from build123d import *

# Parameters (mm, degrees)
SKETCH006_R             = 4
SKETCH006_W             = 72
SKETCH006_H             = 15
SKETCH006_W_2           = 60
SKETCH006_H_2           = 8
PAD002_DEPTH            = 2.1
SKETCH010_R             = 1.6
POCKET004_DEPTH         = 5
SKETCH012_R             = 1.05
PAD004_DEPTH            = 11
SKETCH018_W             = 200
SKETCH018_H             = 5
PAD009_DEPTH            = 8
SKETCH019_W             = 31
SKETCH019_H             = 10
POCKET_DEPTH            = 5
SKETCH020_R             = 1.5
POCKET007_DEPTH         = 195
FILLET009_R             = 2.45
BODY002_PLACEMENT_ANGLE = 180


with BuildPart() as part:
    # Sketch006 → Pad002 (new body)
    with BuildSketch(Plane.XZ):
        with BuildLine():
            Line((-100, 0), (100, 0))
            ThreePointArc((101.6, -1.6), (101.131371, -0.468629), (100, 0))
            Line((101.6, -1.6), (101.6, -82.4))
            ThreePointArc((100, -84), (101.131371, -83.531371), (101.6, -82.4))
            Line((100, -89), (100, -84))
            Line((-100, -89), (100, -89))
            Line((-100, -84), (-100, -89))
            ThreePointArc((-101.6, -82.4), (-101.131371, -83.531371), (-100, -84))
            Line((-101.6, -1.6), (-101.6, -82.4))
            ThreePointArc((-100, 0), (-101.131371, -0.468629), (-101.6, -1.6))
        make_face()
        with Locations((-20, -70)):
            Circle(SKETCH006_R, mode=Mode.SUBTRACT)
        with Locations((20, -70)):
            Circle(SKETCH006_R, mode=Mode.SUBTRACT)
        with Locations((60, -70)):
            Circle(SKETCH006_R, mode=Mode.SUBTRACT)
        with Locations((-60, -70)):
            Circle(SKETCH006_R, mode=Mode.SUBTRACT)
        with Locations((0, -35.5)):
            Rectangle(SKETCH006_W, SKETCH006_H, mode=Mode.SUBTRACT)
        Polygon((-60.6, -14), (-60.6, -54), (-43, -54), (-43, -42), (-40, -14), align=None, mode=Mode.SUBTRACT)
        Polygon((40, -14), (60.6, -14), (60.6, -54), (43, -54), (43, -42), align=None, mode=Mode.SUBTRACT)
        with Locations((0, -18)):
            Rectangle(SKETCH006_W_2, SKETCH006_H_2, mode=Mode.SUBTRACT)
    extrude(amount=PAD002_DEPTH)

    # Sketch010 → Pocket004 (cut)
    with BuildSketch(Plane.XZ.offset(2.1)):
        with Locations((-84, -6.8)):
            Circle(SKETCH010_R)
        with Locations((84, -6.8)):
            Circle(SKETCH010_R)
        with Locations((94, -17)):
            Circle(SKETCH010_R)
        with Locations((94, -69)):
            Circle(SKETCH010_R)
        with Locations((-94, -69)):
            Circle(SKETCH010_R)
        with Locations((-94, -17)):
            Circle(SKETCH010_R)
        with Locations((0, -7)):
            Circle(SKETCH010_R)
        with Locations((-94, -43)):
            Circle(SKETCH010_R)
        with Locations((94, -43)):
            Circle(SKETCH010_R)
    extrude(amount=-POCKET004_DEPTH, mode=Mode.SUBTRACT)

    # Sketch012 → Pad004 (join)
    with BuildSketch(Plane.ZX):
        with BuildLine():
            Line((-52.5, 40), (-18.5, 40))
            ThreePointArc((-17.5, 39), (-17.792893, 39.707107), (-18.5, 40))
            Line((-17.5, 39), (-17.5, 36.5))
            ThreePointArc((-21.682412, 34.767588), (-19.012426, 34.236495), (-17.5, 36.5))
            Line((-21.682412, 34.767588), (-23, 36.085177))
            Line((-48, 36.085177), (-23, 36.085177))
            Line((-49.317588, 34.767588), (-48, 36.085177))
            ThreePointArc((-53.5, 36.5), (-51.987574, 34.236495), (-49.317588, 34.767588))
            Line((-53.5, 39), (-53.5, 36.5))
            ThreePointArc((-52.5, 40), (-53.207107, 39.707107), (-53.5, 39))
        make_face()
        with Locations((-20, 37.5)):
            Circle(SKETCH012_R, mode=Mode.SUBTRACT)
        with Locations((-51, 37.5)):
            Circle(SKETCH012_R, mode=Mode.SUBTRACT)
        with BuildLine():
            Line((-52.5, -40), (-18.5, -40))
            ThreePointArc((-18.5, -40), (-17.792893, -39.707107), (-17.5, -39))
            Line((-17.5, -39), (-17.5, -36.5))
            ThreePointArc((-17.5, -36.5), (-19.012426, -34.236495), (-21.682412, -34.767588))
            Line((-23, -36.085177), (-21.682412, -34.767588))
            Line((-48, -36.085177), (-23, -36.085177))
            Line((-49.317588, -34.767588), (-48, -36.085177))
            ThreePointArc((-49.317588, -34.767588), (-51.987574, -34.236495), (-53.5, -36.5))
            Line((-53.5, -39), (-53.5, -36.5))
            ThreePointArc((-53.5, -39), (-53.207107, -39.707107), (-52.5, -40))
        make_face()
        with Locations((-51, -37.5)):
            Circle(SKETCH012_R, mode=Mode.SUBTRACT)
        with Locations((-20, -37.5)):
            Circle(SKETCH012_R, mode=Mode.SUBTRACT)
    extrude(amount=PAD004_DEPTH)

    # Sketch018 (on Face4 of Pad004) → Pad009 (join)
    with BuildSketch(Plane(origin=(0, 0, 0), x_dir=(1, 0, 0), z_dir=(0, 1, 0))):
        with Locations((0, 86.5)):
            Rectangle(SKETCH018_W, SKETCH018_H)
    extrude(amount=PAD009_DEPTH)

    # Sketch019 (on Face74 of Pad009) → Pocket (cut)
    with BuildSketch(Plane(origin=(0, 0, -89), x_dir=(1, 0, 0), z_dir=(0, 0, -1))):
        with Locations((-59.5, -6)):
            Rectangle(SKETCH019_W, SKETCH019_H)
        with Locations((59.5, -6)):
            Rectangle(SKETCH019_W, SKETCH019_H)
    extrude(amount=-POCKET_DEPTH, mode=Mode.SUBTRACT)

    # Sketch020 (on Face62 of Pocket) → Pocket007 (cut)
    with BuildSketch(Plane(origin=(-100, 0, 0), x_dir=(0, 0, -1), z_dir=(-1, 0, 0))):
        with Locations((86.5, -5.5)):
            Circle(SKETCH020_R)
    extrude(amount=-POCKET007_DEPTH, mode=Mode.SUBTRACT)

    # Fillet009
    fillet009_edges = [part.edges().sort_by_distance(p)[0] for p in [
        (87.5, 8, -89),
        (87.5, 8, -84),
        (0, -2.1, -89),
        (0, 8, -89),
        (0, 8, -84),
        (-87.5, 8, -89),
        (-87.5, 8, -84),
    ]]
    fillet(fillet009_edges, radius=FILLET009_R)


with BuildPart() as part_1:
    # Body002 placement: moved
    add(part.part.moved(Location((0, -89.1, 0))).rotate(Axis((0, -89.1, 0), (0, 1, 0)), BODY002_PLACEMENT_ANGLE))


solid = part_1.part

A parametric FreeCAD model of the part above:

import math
import FreeCAD as App
import Part
import Sketcher
from FreeCAD import Vector


def edges_at(feature, points):
    """Names of the edges that pass closest to the given points."""
    edges = feature.Shape.Edges
    near = lambda p: min(range(len(edges)), key=lambda i: edges[i].distToShape(Part.Vertex(*p))[0])
    return sorted({f"Edge{near(p) + 1}" for p in points})

doc = App.newDocument("Part")
params = doc.addObject("Spreadsheet::Sheet", "Params")
for row, (alias, value) in enumerate([
    ("sketch1_diameter", "8 mm"),
    ("sketch1_radius", "1.599999 mm"),
    ("sketch1_width", "200 mm"),
    ("sketch1_width2", "72 mm"),
    ("sketch1_width3", "60 mm"),
    ("pad1_length", "2.1 mm"),
    ("sketch2_diameter", "3.2 mm"),
    ("pocket1_length", "5 mm"),
    ("sketch3_radius", "0.999999 mm"),
    ("sketch3_diameter", "2.1 mm"),
    ("sketch3_height", "34 mm"),
    ("sketch3_height2", "25 mm"),
    ("sketch3_radius2", "2.45 mm"),
    ("pad2_length", "11 mm"),
    ("sketch4_width", "200 mm"),
    ("sketch4_height", "5 mm"),
    ("pad3_length", "8 mm"),
    ("sketch5_width", "31 mm"),
    ("sketch5_height", "10 mm"),
    ("pocket2_length", "5 mm"),
    ("sketch6_diameter", "3 mm"),
    ("pocket3_length", "195 mm"),
    ("fillet_radius", "2.45 mm"),
], start=1):
    params.set(f"A{row}", alias)
    params.set(f"B{row}", "=" + value)
    params.setAlias(f"B{row}", alias)

body = doc.addObject("PartDesign::Body", "Body")

sketch1 = doc.addObject("Sketcher::SketchObject", "Sketch")
body.addObject(sketch1)
sketch1.AttachmentSupport = (doc.XZ_Plane, [""])
sketch1.MapMode = "FlatFace"
sketch1.addGeometry([
    Part.LineSegment(Vector(100, 0, 0), Vector(-100, 0, 0)),
    Part.ArcOfCircle(Part.Circle(Vector(-100, -1.6, 0), Vector(0, 0, 1), 1.6), math.radians(90), math.radians(180)),
    Part.LineSegment(Vector(-101.6, -1.6, 0), Vector(-101.6, -82.4, 0)),
    Part.ArcOfCircle(Part.Circle(Vector(-100, -82.4, 0), Vector(0, 0, 1), 1.6), math.radians(180), math.radians(270)),
    Part.LineSegment(Vector(-100, -84, 0), Vector(-100, -89, 0)),
    Part.LineSegment(Vector(-100, -89, 0), Vector(100, -89, 0)),
    Part.LineSegment(Vector(100, -89, 0), Vector(100, -84, 0)),
    Part.ArcOfCircle(Part.Circle(Vector(100, -82.4, 0), Vector(0, 0, 1), 1.6), math.radians(-90), math.radians(0)),
    Part.LineSegment(Vector(101.6, -82.4, 0), Vector(101.6, -1.6, 0)),
    Part.ArcOfCircle(Part.Circle(Vector(100, -1.6, 0), Vector(0, 0, 1), 1.6), math.radians(0), math.radians(90)),
    Part.Circle(Vector(60, -70, 0), Vector(0, 0, 1), 4),
    Part.Circle(Vector(20, -70, 0), Vector(0, 0, 1), 4),
    Part.Circle(Vector(-20, -70, 0), Vector(0, 0, 1), 4),
    Part.Circle(Vector(-60, -70, 0), Vector(0, 0, 1), 4),
    Part.LineSegment(Vector(40, -14, 0), Vector(60.6, -14, 0)),
    Part.LineSegment(Vector(60.6, -14, 0), Vector(60.6, -54, 0)),
    Part.LineSegment(Vector(60.6, -54, 0), Vector(43, -54, 0)),
    Part.LineSegment(Vector(43, -54, 0), Vector(43, -42, 0)),
    Part.LineSegment(Vector(43, -42, 0), Vector(40, -14, 0)),
    Part.LineSegment(Vector(-36, -43, 0), Vector(-36, -28, 0)),
    Part.LineSegment(Vector(-36, -28, 0), Vector(36, -28, 0)),
    Part.LineSegment(Vector(36, -28, 0), Vector(36, -43, 0)),
    Part.LineSegment(Vector(36, -43, 0), Vector(-36, -43, 0)),
    Part.LineSegment(Vector(-60.6, -14, 0), Vector(-40, -14, 0)),
    Part.LineSegment(Vector(-40, -14, 0), Vector(-43, -42, 0)),
    Part.LineSegment(Vector(-43, -42, 0), Vector(-43, -54, 0)),
    Part.LineSegment(Vector(-43, -54, 0), Vector(-60.6, -54, 0)),
    Part.LineSegment(Vector(-60.6, -54, 0), Vector(-60.6, -14, 0)),
    Part.LineSegment(Vector(-30, -22, 0), Vector(-30, -14, 0)),
    Part.LineSegment(Vector(-30, -14, 0), Vector(30, -14, 0)),
    Part.LineSegment(Vector(30, -14, 0), Vector(30, -22, 0)),
    Part.LineSegment(Vector(30, -22, 0), Vector(-30, -22, 0)),
], False)
sketch1.addConstraint([
    Sketcher.Constraint("Tangent", 0, 2, 1, 1),
    Sketcher.Constraint("Tangent", 1, 2, 2, 1),
    Sketcher.Constraint("Tangent", 2, 2, 3, 1),
    Sketcher.Constraint("Coincident", 3, 2, 4, 1),
    Sketcher.Constraint("Coincident", 4, 2, 5, 1),
    Sketcher.Constraint("Coincident", 5, 2, 6, 1),
    Sketcher.Constraint("Coincident", 6, 2, 7, 1),
    Sketcher.Constraint("Tangent", 7, 2, 8, 1),
    Sketcher.Constraint("Tangent", 8, 2, 9, 1),
    Sketcher.Constraint("Tangent", 9, 2, 0, 1),
    Sketcher.Constraint("Coincident", 14, 2, 15, 1),
    Sketcher.Constraint("Coincident", 15, 2, 16, 1),
    Sketcher.Constraint("Coincident", 16, 2, 17, 1),
    Sketcher.Constraint("Coincident", 17, 2, 18, 1),
    Sketcher.Constraint("Coincident", 18, 2, 14, 1),
    Sketcher.Constraint("Coincident", 19, 2, 20, 1),
    Sketcher.Constraint("Coincident", 20, 2, 21, 1),
    Sketcher.Constraint("Coincident", 21, 2, 22, 1),
    Sketcher.Constraint("Coincident", 22, 2, 19, 1),
    Sketcher.Constraint("Coincident", 23, 2, 24, 1),
    Sketcher.Constraint("Coincident", 24, 2, 25, 1),
    Sketcher.Constraint("Coincident", 25, 2, 26, 1),
    Sketcher.Constraint("Coincident", 26, 2, 27, 1),
    Sketcher.Constraint("Coincident", 27, 2, 23, 1),
    Sketcher.Constraint("Coincident", 28, 2, 29, 1),
    Sketcher.Constraint("Coincident", 29, 2, 30, 1),
    Sketcher.Constraint("Coincident", 30, 2, 31, 1),
    Sketcher.Constraint("Coincident", 31, 2, 28, 1),
    Sketcher.Constraint("Horizontal", 0),
    Sketcher.Constraint("Vertical", 2),
    Sketcher.Constraint("Vertical", 4),
    Sketcher.Constraint("Horizontal", 5),
    Sketcher.Constraint("Vertical", 6),
    Sketcher.Constraint("Vertical", 8),
    Sketcher.Constraint("Horizontal", 14),
    Sketcher.Constraint("Vertical", 15),
    Sketcher.Constraint("Horizontal", 16),
    Sketcher.Constraint("Vertical", 17),
    Sketcher.Constraint("Vertical", 19),
    Sketcher.Constraint("Horizontal", 20),
    Sketcher.Constraint("Vertical", 21),
    Sketcher.Constraint("Horizontal", 22),
    Sketcher.Constraint("Horizontal", 23),
    Sketcher.Constraint("Vertical", 25),
    Sketcher.Constraint("Horizontal", 26),
    Sketcher.Constraint("Vertical", 27),
    Sketcher.Constraint("Vertical", 28),
    Sketcher.Constraint("Horizontal", 29),
    Sketcher.Constraint("Vertical", 30),
    Sketcher.Constraint("Horizontal", 31),
    Sketcher.Constraint("Equal", 1, 3),
    Sketcher.Constraint("Equal", 3, 7),
    Sketcher.Constraint("Equal", 7, 9),
    Sketcher.Constraint("Equal", 10, 11),
    Sketcher.Constraint("Equal", 11, 12),
    Sketcher.Constraint("Equal", 12, 13),
    Sketcher.Constraint("Symmetric", 0, 2, 9, 2, -1, 1),
    Sketcher.Constraint("Symmetric", 11, 3, 12, 3, -2),
    Sketcher.Constraint("Symmetric", 10, 3, 13, 3, -2),
    Sketcher.Constraint("Symmetric", 3, 2, 6, 2, -2),
    Sketcher.Constraint("Symmetric", 18, 2, 23, 2, -2),
    Sketcher.Constraint("Symmetric", 17, 2, 24, 2, -2),
    Sketcher.Constraint("Symmetric", 15, 2, 26, 2, -2),
    Sketcher.Constraint("Horizontal", 10, 3, 11, 3),
    Sketcher.Constraint("Horizontal", 27, 2, 28, 2),
    Sketcher.Constraint("Vertical", 0, 2, 3, 2),
    Sketcher.Constraint("Diameter", 10, 8.0),
    Sketcher.Constraint("Radius", 1, 1.599999),
    Sketcher.Constraint("DistanceX", 0, 2, 0, 1, 200.0),
    Sketcher.Constraint("DistanceX", 20, 1, 20, 2, 72.0),
    Sketcher.Constraint("DistanceX", 29, 1, 29, 2, 60.0),
    Sketcher.Constraint("DistanceY", 4, 2, 4, 1, 5.0),
    Sketcher.Constraint("DistanceY", 15, 2, 15, 1, 40.0),
    Sketcher.Constraint("DistanceY", 17, 1, 17, 2, 12.0),
    Sketcher.Constraint("DistanceY", 19, 1, 19, 2, 15.0),
    Sketcher.Constraint("DistanceY", 28, 1, 28, 2, 8.0),
    Sketcher.Constraint("DistanceX", 14, 1, 14, 2, 20.6),
    Sketcher.Constraint("DistanceX", 16, 2, 16, 1, 17.6),
    Sketcher.Constraint("DistanceY", 2, 2, 2, 1, 80.8),
    Sketcher.Constraint("DistanceX", -1, 1, 10, 3, 60.0),
    Sketcher.Constraint("DistanceY", 10, 3, -1, 1, 70.0),
    Sketcher.Constraint("DistanceX", -1, 1, 11, 3, 20.0),
    Sketcher.Constraint("DistanceY", 14, 2, -1, 1, 14.0),
    Sketcher.Constraint("DistanceX", -1, 1, 16, 2, 43.0),
    Sketcher.Constraint("DistanceX", 19, 2, -1, 1, 36.0),
    Sketcher.Constraint("DistanceY", 19, 2, -1, 1, 28.0),
    Sketcher.Constraint("DistanceX", 28, 2, -1, 1, 30.0),
])
sketch1.setExpression("Constraints[66]", "Params.sketch1_diameter")
sketch1.setExpression("Constraints[67]", "Params.sketch1_radius")
sketch1.setExpression("Constraints[68]", "Params.sketch1_width")
sketch1.setExpression("Constraints[69]", "Params.sketch1_width2")
sketch1.setExpression("Constraints[70]", "Params.sketch1_width3")
pad1 = doc.addObject("PartDesign::Pad", "Pad")
body.addObject(pad1)
pad1.Profile = sketch1
pad1.setExpression("Length", "Params.pad1_length")

sketch2 = doc.addObject("Sketcher::SketchObject", "Sketch001")
body.addObject(sketch2)
sketch2.AttachmentSupport = (doc.XZ_Plane, [""])
sketch2.MapMode = "FlatFace"
sketch2.AttachmentOffset = App.Placement(Vector(0, 0, 2.1), App.Rotation())
sketch2.addGeometry([
    Part.Circle(Vector(-84, -6.8, 0), Vector(0, 0, 1), 1.6),
    Part.Circle(Vector(84, -6.8, 0), Vector(0, 0, 1), 1.6),
    Part.Circle(Vector(94, -17, 0), Vector(0, 0, 1), 1.6),
    Part.Circle(Vector(94, -69, 0), Vector(0, 0, 1), 1.6),
    Part.Circle(Vector(-94, -69, 0), Vector(0, 0, 1), 1.6),
    Part.Circle(Vector(-94, -17, 0), Vector(0, 0, 1), 1.6),
    Part.Circle(Vector(0, -7, 0), Vector(0, 0, 1), 1.6),
    Part.Circle(Vector(-94, -43, 0), Vector(0, 0, 1), 1.6),
    Part.Circle(Vector(94, -43, 0), Vector(0, 0, 1), 1.6),
], False)
sketch2.addConstraint([
    Sketcher.Constraint("Equal", 0, 1),
    Sketcher.Constraint("Equal", 1, 2),
    Sketcher.Constraint("Equal", 2, 3),
    Sketcher.Constraint("Equal", 3, 4),
    Sketcher.Constraint("Equal", 4, 5),
    Sketcher.Constraint("Equal", 5, 6),
    Sketcher.Constraint("Equal", 6, 7),
    Sketcher.Constraint("Equal", 7, 8),
    Sketcher.Constraint("Symmetric", 0, 3, 1, 3, -2),
    Sketcher.Constraint("Symmetric", 3, 3, 4, 3, -2),
    Sketcher.Constraint("Symmetric", 2, 3, 5, 3, -2),
    Sketcher.Constraint("Symmetric", 7, 3, 8, 3, -2),
    Sketcher.Constraint("PointOnObject", 6, 3, -2),
    Sketcher.Constraint("Vertical", 2, 3, 3, 3),
    Sketcher.Constraint("Vertical", 5, 3, 7, 3),
    Sketcher.Constraint("Diameter", 0, 3.2),
    Sketcher.Constraint("DistanceX", 0, 3, -1, 1, 84.0),
    Sketcher.Constraint("DistanceX", -1, 1, 2, 3, 94.0),
    Sketcher.Constraint("DistanceY", 2, 3, -1, 1, 17.0),
    Sketcher.Constraint("DistanceY", 3, 3, -1, 1, 69.0),
    Sketcher.Constraint("DistanceY", 6, 3, -1, 1, 7.0),
    Sketcher.Constraint("DistanceY", 7, 3, -1, 1, 43.0),
    Sketcher.Constraint("DistanceY", 0, 3, -1, 1, 6.8),
])
sketch2.setExpression("Constraints[15]", "Params.sketch2_diameter")
pocket1 = doc.addObject("PartDesign::Pocket", "Pocket")
body.addObject(pocket1)
pocket1.Profile = sketch2
pocket1.setExpression("Length", "Params.pocket1_length")

sketch3 = doc.addObject("Sketcher::SketchObject", "Sketch002")
body.addObject(sketch3)
sketch3.AttachmentSupport = (doc.XZ_Plane, [""])
sketch3.MapMode = "FlatFace"
sketch3.addGeometry([
    Part.LineSegment(Vector(40, -18.5, 0), Vector(40, -52.5, 0)),
    Part.ArcOfCircle(Part.Circle(Vector(39, -52.5, 0), Vector(0, 0, 1), 1), math.radians(-90), math.radians(0)),
    Part.LineSegment(Vector(39, -53.5, 0), Vector(36.5, -53.5, 0)),
    Part.ArcOfCircle(Part.Circle(Vector(36.5, -51, 0), Vector(0, 0, 1), 2.5), math.radians(135), math.radians(270)),
    Part.LineSegment(Vector(34.8, -49.3, 0), Vector(36.1, -48, 0)),
    Part.LineSegment(Vector(36.1, -48, 0), Vector(36.1, -23, 0)),
    Part.LineSegment(Vector(36.1, -23, 0), Vector(34.8, -21.7, 0)),
    Part.ArcOfCircle(Part.Circle(Vector(36.5, -20, 0), Vector(0, 0, 1), 2.5), math.radians(90), math.radians(225)),
    Part.LineSegment(Vector(36.5, -17.5, 0), Vector(39, -17.5, 0)),
    Part.ArcOfCircle(Part.Circle(Vector(39, -18.5, 0), Vector(0, 0, 1), 1), math.radians(0), math.radians(90)),
    Part.Circle(Vector(37.5, -20, 0), Vector(0, 0, 1), 1.1),
    Part.Circle(Vector(37.5, -51, 0), Vector(0, 0, 1), 1.1),
    Part.LineSegment(Vector(-40, -52.5, 0), Vector(-40, -18.5, 0)),
    Part.ArcOfCircle(Part.Circle(Vector(-39, -18.5, 0), Vector(0, 0, 1), 1), math.radians(90), math.radians(180)),
    Part.LineSegment(Vector(-39, -17.5, 0), Vector(-36.5, -17.5, 0)),
    Part.ArcOfCircle(Part.Circle(Vector(-36.5, -20, 0), Vector(0, 0, 1), 2.5), math.radians(-45), math.radians(90)),
    Part.LineSegment(Vector(-34.8, -21.7, 0), Vector(-36.1, -23, 0)),
    Part.LineSegment(Vector(-36.1, -23, 0), Vector(-36.1, -48, 0)),
    Part.LineSegment(Vector(-36.1, -48, 0), Vector(-34.8, -49.3, 0)),
    Part.ArcOfCircle(Part.Circle(Vector(-36.5, -51, 0), Vector(0, 0, 1), 2.5), math.radians(-90), math.radians(45)),
    Part.LineSegment(Vector(-36.5, -53.5, 0), Vector(-39, -53.5, 0)),
    Part.ArcOfCircle(Part.Circle(Vector(-39, -52.5, 0), Vector(0, 0, 1), 1), math.radians(180), math.radians(270)),
    Part.Circle(Vector(-37.5, -51, 0), Vector(0, 0, 1), 1.1),
    Part.Circle(Vector(-37.5, -20, 0), Vector(0, 0, 1), 1.1),
], False)
sketch3.addConstraint([
    Sketcher.Constraint("Tangent", 0, 2, 1, 2),
    Sketcher.Constraint("Tangent", 1, 1, 2, 1),
    Sketcher.Constraint("Tangent", 2, 2, 3, 2),
    Sketcher.Constraint("Tangent", 3, 1, 4, 1),
    Sketcher.Constraint("Coincident", 4, 2, 5, 1),
    Sketcher.Constraint("Coincident", 5, 2, 6, 1),
    Sketcher.Constraint("Tangent", 6, 2, 7, 2),
    Sketcher.Constraint("Tangent", 7, 1, 8, 1),
    Sketcher.Constraint("Tangent", 8, 2, 9, 2),
    Sketcher.Constraint("Tangent", 9, 1, 0, 1),
    Sketcher.Constraint("Tangent", 12, 2, 13, 2),
    Sketcher.Constraint("Tangent", 13, 1, 14, 1),
    Sketcher.Constraint("Tangent", 14, 2, 15, 2),
    Sketcher.Constraint("Tangent", 15, 1, 16, 1),
    Sketcher.Constraint("Coincident", 16, 2, 17, 1),
    Sketcher.Constraint("Coincident", 17, 2, 18, 1),
    Sketcher.Constraint("Tangent", 18, 2, 19, 2),
    Sketcher.Constraint("Tangent", 19, 1, 20, 1),
    Sketcher.Constraint("Tangent", 20, 2, 21, 2),
    Sketcher.Constraint("Tangent", 21, 1, 12, 1),
    Sketcher.Constraint("Vertical", 0),
    Sketcher.Constraint("Horizontal", 2),
    Sketcher.Constraint("Vertical", 5),
    Sketcher.Constraint("Horizontal", 8),
    Sketcher.Constraint("Vertical", 12),
    Sketcher.Constraint("Horizontal", 14),
    Sketcher.Constraint("Vertical", 17),
    Sketcher.Constraint("Horizontal", 20),
    Sketcher.Constraint("Equal", 3, 7),
    Sketcher.Constraint("Equal", 1, 9),
    Sketcher.Constraint("Equal", 10, 11),
    Sketcher.Constraint("Equal", 9, 13),
    Sketcher.Constraint("Equal", 7, 15),
    Sketcher.Constraint("Equal", 15, 19),
    Sketcher.Constraint("Equal", 13, 21),
    Sketcher.Constraint("Equal", 11, 22),
    Sketcher.Constraint("Equal", 22, 23),
    Sketcher.Constraint("Symmetric", 9, 3, 13, 3, -2),
    Sketcher.Constraint("Symmetric", 3, 3, 19, 3, -2),
    Sketcher.Constraint("Symmetric", 11, 3, 22, 3, -2),
    Sketcher.Constraint("Symmetric", 10, 3, 23, 3, -2),
    Sketcher.Constraint("Symmetric", 6, 2, 15, 1, -2),
    Sketcher.Constraint("Symmetric", 4, 2, 17, 2, -2),
    Sketcher.Constraint("Perpendicular", 4, 6),
    Sketcher.Constraint("Perpendicular", 6, 16),
    Sketcher.Constraint("Vertical", 3, 3, 7, 3),
    Sketcher.Constraint("Vertical", 10, 3, 11, 3),
    Sketcher.Constraint("Radius", 1, 0.999999),
    Sketcher.Constraint("Diameter", 10, 2.1),
    Sketcher.Constraint("DistanceY", 0, 2, 0, 1, 34.0),
    Sketcher.Constraint("DistanceY", 5, 1, 5, 2, 25.0),
    Sketcher.Constraint("Radius", 3, 2.45),
    Sketcher.Constraint("DistanceX", 2, 2, 2, 1, 2.5),
    Sketcher.Constraint("DistanceX", -1, 1, 1, 3, 39.000001),
    Sketcher.Constraint("DistanceY", 10, 3, -1, 1, 20.0),
    Sketcher.Constraint("DistanceY", 11, 3, -1, 1, 51.0),
    Sketcher.Constraint("DistanceY", 4, 2, -1, 1, 48.0),
    Sketcher.Constraint("DistanceX", 7, 3, 10, 3, 1.0),
])
sketch3.setExpression("Constraints[47]", "Params.sketch3_radius")
sketch3.setExpression("Constraints[48]", "Params.sketch3_diameter")
sketch3.setExpression("Constraints[49]", "Params.sketch3_height")
sketch3.setExpression("Constraints[50]", "Params.sketch3_height2")
sketch3.setExpression("Constraints[51]", "Params.sketch3_radius2")
pad2 = doc.addObject("PartDesign::Pad", "Pad001")
body.addObject(pad2)
pad2.Profile = sketch3
pad2.setExpression("Length", "Params.pad2_length")
pad2.Reversed = True

sketch4 = doc.addObject("Sketcher::SketchObject", "Sketch003")
body.addObject(sketch4)
sketch4.AttachmentSupport = (doc.XZ_Plane, [""])
sketch4.MapMode = "FlatFace"
sketch4.addGeometry([
    Part.LineSegment(Vector(-100, -89, 0), Vector(-100, -84, 0)),
    Part.LineSegment(Vector(-100, -84, 0), Vector(100, -84, 0)),
    Part.LineSegment(Vector(100, -84, 0), Vector(100, -89, 0)),
    Part.LineSegment(Vector(100, -89, 0), Vector(-100, -89, 0)),
], False)
sketch4.addConstraint([
    Sketcher.Constraint("Coincident", 0, 2, 1, 1),
    Sketcher.Constraint("Coincident", 1, 2, 2, 1),
    Sketcher.Constraint("Coincident", 2, 2, 3, 1),
    Sketcher.Constraint("Coincident", 3, 2, 0, 1),
    Sketcher.Constraint("Vertical", 0),
    Sketcher.Constraint("Horizontal", 1),
    Sketcher.Constraint("Vertical", 2),
    Sketcher.Constraint("Horizontal", 3),
    Sketcher.Constraint("DistanceX", 1, 1, 1, 2, 200.0),
    Sketcher.Constraint("DistanceY", 0, 1, 0, 2, 5.0),
    Sketcher.Constraint("DistanceX", 0, 2, -1, 1, 100.0),
    Sketcher.Constraint("DistanceY", 0, 2, -1, 1, 84.0),
])
sketch4.setExpression("Constraints[8]", "Params.sketch4_width")
sketch4.setExpression("Constraints[9]", "Params.sketch4_height")
pad3 = doc.addObject("PartDesign::Pad", "Pad002")
body.addObject(pad3)
pad3.Profile = sketch4
pad3.setExpression("Length", "Params.pad3_length")
pad3.Reversed = True

sketch5 = doc.addObject("Sketcher::SketchObject", "Sketch004")
body.addObject(sketch5)
sketch5.AttachmentSupport = (doc.XY_Plane, [""])
sketch5.MapMode = "FlatFace"
sketch5.AttachmentOffset = App.Placement(Vector(0, 0, -89), App.Rotation())
sketch5.addGeometry([
    Part.LineSegment(Vector(-75, 1, 0), Vector(-75, 11, 0)),
    Part.LineSegment(Vector(-75, 11, 0), Vector(-44, 11, 0)),
    Part.LineSegment(Vector(-44, 11, 0), Vector(-44, 1, 0)),
    Part.LineSegment(Vector(-44, 1, 0), Vector(-75, 1, 0)),
    Part.LineSegment(Vector(44, 1, 0), Vector(44, 11, 0)),
    Part.LineSegment(Vector(44, 11, 0), Vector(75, 11, 0)),
    Part.LineSegment(Vector(75, 11, 0), Vector(75, 1, 0)),
    Part.LineSegment(Vector(75, 1, 0), Vector(44, 1, 0)),
], False)
sketch5.addConstraint([
    Sketcher.Constraint("Coincident", 0, 2, 1, 1),
    Sketcher.Constraint("Coincident", 1, 2, 2, 1),
    Sketcher.Constraint("Coincident", 2, 2, 3, 1),
    Sketcher.Constraint("Coincident", 3, 2, 0, 1),
    Sketcher.Constraint("Coincident", 4, 2, 5, 1),
    Sketcher.Constraint("Coincident", 5, 2, 6, 1),
    Sketcher.Constraint("Coincident", 6, 2, 7, 1),
    Sketcher.Constraint("Coincident", 7, 2, 4, 1),
    Sketcher.Constraint("Vertical", 0),
    Sketcher.Constraint("Horizontal", 1),
    Sketcher.Constraint("Vertical", 2),
    Sketcher.Constraint("Horizontal", 3),
    Sketcher.Constraint("Vertical", 4),
    Sketcher.Constraint("Horizontal", 5),
    Sketcher.Constraint("Vertical", 6),
    Sketcher.Constraint("Horizontal", 7),
    Sketcher.Constraint("Symmetric", 1, 2, 4, 2, -2),
    Sketcher.Constraint("Symmetric", 3, 2, 6, 2, -2),
    Sketcher.Constraint("DistanceX", 1, 1, 1, 2, 31.0),
    Sketcher.Constraint("DistanceY", 0, 1, 0, 2, 10.0),
    Sketcher.Constraint("DistanceX", 0, 2, -1, 1, 75.0),
    Sketcher.Constraint("DistanceY", -1, 1, 0, 2, 11.0),
])
sketch5.setExpression("Constraints[18]", "Params.sketch5_width")
sketch5.setExpression("Constraints[19]", "Params.sketch5_height")
pocket2 = doc.addObject("PartDesign::Pocket", "Pocket001")
body.addObject(pocket2)
pocket2.Profile = sketch5
pocket2.setExpression("Length", "Params.pocket2_length")
pocket2.Reversed = True

sketch6 = doc.addObject("Sketcher::SketchObject", "Sketch005")
body.addObject(sketch6)
sketch6.AttachmentSupport = (doc.YZ_Plane, [""])
sketch6.MapMode = "FlatFace"
sketch6.AttachmentOffset = App.Placement(Vector(0, 0, -100), App.Rotation())
sketch6.addGeometry(Part.Circle(Vector(5.5, -86.5, 0), Vector(0, 0, 1), 1.5), False)
sketch6.addConstraint([
    Sketcher.Constraint("Diameter", 0, 3.0),
    Sketcher.Constraint("DistanceX", -1, 1, 0, 3, 5.5),
    Sketcher.Constraint("DistanceY", 0, 3, -1, 1, 86.5),
])
sketch6.setExpression("Constraints[0]", "Params.sketch6_diameter")
pocket3 = doc.addObject("PartDesign::Pocket", "Pocket002")
body.addObject(pocket3)
pocket3.Profile = sketch6
pocket3.setExpression("Length", "Params.pocket3_length")
pocket3.Reversed = True
doc.recompute()

fillet = doc.addObject("PartDesign::Fillet", "Fillet")
body.addObject(fillet)
fillet.Base = (pocket3, edges_at(pocket3, [
    (87.5, 8, -89),
    (87.5, 8, -84),
    (0, -2.1, -89),
    (0, 8, -89),
    (0, 8, -84),
    (-87.5, 8, -89),
    (-87.5, 8, -84),
]))
fillet.setExpression("Radius", "Params.fillet_radius")
body2 = doc.addObject("PartDesign::Body", "Body001")
doc.recompute()

body.Placement = App.Placement(Vector(0, -89.1, 0), App.Rotation(Vector(0, 1, 0), 180))
boolean = doc.addObject("PartDesign::Boolean", "Boolean")
body2.addObject(boolean)
boolean.Type = "Fuse"
boolean.addObjects([body])

doc.recompute()
